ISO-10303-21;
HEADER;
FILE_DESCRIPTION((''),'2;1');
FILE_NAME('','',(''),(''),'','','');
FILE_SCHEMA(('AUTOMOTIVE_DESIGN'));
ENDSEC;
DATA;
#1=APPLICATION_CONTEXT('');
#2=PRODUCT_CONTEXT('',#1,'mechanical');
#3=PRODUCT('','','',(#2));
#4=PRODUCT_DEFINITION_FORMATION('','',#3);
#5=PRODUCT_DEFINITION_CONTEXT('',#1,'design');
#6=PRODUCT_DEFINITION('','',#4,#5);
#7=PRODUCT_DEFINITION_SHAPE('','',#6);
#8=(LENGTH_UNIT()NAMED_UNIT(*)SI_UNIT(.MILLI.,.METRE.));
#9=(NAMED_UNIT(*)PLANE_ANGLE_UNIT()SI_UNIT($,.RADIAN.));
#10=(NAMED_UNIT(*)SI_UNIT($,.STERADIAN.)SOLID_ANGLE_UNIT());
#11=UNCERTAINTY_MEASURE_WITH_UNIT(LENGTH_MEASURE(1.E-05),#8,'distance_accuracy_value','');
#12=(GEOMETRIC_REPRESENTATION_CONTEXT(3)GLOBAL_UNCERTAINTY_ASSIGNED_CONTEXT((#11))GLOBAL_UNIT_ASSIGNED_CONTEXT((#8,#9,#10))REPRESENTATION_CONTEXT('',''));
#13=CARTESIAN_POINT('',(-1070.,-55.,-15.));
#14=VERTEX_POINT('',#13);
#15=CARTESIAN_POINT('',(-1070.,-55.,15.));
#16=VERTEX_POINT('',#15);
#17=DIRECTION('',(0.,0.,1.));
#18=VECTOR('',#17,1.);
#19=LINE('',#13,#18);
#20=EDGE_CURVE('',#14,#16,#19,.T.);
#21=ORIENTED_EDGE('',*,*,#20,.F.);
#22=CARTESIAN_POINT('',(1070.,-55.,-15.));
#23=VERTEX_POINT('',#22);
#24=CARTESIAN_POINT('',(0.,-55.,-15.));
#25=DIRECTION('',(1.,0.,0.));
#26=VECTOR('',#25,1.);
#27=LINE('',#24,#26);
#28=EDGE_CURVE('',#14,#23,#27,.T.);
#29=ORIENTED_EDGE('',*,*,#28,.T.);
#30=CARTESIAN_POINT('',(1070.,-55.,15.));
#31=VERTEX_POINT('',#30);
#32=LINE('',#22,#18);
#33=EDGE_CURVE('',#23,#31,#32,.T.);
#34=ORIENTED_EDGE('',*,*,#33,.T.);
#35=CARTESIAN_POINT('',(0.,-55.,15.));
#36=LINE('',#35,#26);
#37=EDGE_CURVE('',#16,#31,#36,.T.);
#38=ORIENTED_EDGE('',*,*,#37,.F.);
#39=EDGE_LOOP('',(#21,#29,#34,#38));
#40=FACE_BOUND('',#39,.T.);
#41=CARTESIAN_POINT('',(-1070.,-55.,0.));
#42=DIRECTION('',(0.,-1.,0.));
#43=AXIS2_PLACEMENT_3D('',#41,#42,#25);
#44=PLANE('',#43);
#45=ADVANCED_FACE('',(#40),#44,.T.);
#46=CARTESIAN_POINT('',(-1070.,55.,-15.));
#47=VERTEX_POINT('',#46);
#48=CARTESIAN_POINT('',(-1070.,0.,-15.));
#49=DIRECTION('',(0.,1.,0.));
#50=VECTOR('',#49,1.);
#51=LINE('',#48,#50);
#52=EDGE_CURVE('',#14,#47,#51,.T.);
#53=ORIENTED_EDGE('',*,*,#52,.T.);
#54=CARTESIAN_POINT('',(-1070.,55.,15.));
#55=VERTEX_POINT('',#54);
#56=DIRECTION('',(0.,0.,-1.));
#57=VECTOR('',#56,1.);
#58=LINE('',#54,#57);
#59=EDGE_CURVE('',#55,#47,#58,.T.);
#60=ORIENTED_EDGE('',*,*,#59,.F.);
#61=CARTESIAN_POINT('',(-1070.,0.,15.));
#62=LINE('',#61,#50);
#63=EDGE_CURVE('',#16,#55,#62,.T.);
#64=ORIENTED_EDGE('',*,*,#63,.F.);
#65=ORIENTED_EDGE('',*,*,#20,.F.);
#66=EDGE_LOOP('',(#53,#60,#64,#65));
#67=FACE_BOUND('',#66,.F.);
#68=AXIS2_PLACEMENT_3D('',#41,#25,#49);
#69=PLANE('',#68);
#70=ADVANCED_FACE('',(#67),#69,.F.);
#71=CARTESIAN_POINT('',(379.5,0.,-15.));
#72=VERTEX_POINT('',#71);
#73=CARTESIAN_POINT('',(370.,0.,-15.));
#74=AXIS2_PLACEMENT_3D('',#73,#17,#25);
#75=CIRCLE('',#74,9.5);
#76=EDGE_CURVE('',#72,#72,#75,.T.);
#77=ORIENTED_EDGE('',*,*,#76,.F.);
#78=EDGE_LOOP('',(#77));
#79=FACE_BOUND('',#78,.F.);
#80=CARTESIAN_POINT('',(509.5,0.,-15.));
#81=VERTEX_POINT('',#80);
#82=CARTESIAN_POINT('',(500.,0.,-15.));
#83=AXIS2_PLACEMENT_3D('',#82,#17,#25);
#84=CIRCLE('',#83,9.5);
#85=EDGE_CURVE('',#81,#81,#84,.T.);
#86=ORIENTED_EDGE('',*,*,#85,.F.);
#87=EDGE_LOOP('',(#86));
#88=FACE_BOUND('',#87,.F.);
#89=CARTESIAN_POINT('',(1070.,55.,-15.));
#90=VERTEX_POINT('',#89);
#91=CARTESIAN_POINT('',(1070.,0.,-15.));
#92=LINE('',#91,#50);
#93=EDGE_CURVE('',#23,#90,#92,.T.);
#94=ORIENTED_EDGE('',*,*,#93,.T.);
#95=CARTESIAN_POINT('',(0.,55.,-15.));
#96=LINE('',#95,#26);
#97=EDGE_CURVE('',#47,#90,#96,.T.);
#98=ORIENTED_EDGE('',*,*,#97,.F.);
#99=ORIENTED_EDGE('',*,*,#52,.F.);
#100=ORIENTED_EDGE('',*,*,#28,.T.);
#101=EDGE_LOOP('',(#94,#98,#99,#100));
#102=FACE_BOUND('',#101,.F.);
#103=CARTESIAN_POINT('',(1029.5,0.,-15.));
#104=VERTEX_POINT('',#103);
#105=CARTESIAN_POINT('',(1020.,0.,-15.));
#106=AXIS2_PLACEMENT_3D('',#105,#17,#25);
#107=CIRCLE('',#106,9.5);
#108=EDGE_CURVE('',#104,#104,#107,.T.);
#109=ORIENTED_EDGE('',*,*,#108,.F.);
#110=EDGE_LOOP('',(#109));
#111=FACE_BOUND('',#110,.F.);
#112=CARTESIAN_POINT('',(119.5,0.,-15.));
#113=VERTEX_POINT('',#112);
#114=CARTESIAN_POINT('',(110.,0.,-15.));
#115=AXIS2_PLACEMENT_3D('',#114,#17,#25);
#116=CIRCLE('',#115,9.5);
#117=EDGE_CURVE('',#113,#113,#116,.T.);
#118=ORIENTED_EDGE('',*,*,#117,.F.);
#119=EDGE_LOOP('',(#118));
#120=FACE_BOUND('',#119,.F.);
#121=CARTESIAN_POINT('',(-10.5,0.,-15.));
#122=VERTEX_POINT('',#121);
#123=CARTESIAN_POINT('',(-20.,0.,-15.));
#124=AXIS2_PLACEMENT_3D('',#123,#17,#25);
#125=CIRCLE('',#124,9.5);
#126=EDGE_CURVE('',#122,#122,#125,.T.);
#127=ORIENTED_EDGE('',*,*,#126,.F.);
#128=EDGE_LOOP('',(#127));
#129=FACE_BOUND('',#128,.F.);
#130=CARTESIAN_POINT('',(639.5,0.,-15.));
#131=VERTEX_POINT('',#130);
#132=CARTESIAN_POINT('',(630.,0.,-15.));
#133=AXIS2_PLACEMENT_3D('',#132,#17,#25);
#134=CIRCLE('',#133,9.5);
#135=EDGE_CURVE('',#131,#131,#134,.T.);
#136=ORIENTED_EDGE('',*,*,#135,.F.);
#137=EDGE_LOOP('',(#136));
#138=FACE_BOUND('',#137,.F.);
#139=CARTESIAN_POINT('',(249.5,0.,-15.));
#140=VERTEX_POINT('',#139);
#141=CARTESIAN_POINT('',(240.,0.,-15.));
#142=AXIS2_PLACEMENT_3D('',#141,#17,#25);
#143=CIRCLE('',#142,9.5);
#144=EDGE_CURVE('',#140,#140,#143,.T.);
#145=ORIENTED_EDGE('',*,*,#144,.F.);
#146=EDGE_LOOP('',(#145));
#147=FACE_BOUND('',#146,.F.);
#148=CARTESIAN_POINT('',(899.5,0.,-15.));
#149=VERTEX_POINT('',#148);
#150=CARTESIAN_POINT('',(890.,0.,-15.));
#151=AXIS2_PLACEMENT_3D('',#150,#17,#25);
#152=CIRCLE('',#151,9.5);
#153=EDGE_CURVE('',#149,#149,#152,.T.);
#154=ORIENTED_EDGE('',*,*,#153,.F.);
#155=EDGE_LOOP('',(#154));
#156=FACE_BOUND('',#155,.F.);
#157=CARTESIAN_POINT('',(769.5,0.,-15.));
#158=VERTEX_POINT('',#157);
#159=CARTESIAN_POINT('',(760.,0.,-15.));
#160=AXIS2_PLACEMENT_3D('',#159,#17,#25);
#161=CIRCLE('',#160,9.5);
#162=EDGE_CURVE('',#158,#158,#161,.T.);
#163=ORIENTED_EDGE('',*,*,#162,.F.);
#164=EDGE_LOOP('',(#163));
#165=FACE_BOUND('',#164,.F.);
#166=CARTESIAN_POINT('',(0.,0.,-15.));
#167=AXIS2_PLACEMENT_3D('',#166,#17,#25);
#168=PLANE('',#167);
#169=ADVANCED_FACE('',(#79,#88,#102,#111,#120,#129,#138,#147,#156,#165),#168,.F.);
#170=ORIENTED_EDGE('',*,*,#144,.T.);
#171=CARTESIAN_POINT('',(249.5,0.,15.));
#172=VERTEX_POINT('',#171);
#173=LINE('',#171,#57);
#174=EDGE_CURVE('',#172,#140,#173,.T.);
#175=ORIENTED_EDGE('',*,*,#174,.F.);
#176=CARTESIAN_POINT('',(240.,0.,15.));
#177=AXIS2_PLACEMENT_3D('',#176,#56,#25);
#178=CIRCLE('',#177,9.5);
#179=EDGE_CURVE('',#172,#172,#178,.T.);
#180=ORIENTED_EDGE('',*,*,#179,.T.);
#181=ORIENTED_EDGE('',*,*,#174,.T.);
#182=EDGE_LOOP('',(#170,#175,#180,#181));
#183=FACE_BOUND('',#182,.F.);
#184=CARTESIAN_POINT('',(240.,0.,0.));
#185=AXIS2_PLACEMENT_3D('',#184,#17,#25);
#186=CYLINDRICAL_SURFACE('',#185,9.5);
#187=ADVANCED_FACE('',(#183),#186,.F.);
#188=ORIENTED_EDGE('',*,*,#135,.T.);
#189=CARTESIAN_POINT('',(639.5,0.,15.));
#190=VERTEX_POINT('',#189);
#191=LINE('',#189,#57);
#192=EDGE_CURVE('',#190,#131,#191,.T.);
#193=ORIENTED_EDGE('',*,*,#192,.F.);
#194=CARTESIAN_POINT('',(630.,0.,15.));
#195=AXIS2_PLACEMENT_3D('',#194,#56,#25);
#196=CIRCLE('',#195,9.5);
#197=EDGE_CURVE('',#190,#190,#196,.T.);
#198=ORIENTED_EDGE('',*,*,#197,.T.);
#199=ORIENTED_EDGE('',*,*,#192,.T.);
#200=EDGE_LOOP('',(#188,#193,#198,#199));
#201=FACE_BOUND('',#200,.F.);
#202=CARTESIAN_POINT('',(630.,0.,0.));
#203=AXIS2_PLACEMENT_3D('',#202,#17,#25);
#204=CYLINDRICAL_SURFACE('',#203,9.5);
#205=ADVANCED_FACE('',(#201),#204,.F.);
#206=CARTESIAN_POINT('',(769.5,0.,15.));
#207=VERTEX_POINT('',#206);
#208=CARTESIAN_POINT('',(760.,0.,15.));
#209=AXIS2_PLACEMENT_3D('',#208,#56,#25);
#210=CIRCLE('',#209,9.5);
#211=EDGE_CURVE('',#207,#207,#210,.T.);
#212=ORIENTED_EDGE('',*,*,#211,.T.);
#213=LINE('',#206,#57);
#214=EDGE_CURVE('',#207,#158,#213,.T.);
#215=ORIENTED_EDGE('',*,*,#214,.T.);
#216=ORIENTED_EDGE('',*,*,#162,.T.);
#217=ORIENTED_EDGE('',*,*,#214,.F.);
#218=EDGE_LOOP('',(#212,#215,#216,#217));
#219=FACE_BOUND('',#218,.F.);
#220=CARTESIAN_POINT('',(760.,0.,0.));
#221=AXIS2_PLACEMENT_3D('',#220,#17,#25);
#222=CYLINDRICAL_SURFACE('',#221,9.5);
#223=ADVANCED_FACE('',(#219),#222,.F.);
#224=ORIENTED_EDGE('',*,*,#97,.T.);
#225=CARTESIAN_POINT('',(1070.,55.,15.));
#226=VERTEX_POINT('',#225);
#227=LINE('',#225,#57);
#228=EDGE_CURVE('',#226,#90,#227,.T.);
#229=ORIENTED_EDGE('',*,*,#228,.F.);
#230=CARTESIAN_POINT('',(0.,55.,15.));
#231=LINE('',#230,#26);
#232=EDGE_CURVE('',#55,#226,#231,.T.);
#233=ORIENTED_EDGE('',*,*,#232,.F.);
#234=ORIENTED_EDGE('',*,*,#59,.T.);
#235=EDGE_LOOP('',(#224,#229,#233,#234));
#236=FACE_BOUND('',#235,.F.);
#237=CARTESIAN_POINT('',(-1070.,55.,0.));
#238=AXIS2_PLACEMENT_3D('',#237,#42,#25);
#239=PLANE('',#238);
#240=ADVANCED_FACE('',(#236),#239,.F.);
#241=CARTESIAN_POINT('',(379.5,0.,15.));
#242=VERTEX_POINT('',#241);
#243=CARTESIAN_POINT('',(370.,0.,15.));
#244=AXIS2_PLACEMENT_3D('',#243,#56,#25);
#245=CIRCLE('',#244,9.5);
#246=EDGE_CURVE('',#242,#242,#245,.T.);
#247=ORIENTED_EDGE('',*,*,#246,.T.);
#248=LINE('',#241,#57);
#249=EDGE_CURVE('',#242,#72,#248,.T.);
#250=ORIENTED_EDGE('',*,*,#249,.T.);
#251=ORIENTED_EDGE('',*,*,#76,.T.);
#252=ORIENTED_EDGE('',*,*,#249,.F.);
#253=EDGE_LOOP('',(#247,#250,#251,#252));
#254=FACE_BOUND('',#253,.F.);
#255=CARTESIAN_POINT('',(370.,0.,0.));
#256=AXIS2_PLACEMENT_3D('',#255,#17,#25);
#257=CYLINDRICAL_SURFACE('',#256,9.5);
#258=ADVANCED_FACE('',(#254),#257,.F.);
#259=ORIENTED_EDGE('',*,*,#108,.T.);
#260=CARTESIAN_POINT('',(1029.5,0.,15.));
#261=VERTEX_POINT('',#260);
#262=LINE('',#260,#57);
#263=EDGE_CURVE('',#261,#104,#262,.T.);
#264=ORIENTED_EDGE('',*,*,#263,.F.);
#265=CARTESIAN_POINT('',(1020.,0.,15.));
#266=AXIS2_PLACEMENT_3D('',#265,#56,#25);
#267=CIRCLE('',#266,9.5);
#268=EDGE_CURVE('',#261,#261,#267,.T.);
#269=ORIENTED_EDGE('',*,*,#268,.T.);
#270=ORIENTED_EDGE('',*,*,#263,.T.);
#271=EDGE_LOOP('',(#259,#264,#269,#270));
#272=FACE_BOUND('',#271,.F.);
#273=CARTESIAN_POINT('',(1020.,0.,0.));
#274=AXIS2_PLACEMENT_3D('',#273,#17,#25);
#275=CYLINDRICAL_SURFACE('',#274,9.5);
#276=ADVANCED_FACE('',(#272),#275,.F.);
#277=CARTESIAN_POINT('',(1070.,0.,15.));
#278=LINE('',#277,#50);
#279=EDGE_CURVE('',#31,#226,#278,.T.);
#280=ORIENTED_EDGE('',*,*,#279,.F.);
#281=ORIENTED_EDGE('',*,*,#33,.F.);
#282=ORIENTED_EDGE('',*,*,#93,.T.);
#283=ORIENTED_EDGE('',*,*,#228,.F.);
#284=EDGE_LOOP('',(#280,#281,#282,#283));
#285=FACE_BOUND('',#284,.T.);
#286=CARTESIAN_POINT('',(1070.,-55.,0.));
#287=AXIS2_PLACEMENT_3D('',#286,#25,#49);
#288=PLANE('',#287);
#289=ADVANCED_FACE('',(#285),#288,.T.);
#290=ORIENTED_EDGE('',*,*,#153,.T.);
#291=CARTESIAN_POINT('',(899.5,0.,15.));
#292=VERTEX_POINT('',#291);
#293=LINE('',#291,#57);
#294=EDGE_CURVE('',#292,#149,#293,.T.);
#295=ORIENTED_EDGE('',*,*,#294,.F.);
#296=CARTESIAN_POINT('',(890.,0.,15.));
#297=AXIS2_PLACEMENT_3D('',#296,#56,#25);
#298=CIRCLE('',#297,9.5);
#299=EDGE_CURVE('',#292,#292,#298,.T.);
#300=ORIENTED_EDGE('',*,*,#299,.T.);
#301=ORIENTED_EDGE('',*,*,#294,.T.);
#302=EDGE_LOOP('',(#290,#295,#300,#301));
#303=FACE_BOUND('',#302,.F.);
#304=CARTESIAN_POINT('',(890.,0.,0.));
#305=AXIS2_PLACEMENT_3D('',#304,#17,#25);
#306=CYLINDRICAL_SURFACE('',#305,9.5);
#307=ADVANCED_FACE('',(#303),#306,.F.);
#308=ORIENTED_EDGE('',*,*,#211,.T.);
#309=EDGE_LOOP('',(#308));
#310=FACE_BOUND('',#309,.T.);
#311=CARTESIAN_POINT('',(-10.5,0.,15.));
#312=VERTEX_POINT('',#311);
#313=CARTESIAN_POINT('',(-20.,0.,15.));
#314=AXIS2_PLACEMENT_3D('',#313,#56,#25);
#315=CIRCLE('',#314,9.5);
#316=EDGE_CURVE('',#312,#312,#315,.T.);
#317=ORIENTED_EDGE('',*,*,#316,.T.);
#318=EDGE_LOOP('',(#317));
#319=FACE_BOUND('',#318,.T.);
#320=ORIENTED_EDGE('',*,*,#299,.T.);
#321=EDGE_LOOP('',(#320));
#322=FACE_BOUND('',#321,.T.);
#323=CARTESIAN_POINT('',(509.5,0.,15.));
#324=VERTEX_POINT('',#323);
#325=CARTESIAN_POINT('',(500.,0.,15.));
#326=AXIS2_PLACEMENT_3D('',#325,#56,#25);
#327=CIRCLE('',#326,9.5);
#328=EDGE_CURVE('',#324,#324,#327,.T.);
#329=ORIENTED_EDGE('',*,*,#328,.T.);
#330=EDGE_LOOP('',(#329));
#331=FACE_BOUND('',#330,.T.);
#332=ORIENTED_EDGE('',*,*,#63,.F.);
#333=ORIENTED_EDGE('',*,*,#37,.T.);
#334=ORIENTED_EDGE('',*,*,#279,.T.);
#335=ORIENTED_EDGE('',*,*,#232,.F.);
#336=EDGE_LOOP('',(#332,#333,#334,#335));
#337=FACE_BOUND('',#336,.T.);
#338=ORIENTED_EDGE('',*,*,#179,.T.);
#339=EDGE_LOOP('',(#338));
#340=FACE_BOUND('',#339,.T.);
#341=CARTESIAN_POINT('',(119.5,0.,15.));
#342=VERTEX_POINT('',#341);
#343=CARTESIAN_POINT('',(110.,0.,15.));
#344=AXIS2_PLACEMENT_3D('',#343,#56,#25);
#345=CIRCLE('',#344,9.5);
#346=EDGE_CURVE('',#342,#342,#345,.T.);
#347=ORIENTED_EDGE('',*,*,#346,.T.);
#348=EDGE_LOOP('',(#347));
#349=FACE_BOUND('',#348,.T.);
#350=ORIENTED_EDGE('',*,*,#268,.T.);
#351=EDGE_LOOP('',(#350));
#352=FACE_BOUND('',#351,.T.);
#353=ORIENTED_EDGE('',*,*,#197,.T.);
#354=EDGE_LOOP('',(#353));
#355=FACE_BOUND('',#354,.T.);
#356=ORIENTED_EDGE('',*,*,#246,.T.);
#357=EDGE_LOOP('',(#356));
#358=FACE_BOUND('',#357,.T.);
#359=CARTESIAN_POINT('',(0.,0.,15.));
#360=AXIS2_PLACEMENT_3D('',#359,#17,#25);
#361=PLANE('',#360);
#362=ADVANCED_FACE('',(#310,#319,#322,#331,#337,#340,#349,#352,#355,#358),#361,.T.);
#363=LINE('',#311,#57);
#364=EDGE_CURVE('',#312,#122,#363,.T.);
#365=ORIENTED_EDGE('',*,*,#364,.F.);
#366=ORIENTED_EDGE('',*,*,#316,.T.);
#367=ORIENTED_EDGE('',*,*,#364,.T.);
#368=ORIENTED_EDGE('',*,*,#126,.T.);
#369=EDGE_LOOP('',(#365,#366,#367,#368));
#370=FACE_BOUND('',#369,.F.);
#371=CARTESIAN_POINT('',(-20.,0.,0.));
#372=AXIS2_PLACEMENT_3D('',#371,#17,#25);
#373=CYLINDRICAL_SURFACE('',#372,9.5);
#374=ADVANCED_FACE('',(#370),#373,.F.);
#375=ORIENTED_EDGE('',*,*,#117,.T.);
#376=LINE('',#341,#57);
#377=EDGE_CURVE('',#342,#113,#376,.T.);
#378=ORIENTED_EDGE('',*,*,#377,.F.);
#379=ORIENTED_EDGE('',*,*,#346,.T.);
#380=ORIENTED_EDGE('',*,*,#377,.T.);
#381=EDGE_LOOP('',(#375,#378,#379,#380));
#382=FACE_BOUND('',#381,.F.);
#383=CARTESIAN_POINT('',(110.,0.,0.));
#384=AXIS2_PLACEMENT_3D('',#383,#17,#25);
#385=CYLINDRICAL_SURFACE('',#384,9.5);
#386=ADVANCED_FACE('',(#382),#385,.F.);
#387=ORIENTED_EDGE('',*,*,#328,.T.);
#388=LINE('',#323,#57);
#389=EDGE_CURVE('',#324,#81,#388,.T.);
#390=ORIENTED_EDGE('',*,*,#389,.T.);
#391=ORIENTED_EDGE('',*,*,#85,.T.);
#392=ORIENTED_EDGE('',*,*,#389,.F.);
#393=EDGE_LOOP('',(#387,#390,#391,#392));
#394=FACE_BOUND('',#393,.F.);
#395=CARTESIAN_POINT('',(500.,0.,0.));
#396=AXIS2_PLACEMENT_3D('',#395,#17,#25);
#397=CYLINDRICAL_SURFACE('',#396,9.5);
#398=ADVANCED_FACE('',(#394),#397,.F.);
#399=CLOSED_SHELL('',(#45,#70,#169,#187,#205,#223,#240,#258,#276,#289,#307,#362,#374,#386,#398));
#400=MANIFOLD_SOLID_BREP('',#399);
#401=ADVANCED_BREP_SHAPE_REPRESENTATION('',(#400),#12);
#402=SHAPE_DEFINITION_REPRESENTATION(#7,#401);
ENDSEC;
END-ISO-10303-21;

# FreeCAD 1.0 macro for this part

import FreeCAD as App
import Part
import Sketcher
from FreeCAD import Vector

doc = App.newDocument("Part")
body = doc.addObject("PartDesign::Body", "Body")

# Sketch on XY plane
sketch1 = body.newObject("Sketcher::SketchObject", "Sketch")
sketch1.AttachmentSupport = (doc.getObject("XY_Plane"), [""])
sketch1.MapMode = "FlatFace"
sketch1.addGeometry([
    Part.LineSegment(Vector(-1070, 55, 0), Vector(-1070, -55, 0)),
    Part.LineSegment(Vector(-1070, -55, 0), Vector(1070, -55, 0)),
    Part.LineSegment(Vector(1070, -55, 0), Vector(1070, 55, 0)),
    Part.LineSegment(Vector(1070, 55, 0), Vector(-1070, 55, 0)),
], False)
sketch1.addConstraint([
    Sketcher.Constraint("Coincident", 0, 2, 1, 1),
    Sketcher.Constraint("Coincident", 1, 2, 2, 1),
    Sketcher.Constraint("Coincident", 2, 2, 3, 1),
    Sketcher.Constraint("Coincident", 3, 2, 0, 1),
    Sketcher.Constraint("Vertical", 0),
    Sketcher.Constraint("Horizontal", 1),
    Sketcher.Constraint("Vertical", 2),
    Sketcher.Constraint("Horizontal", 3),
    Sketcher.Constraint("Symmetric", 0, 2, 2, 2, -1, 1),
    Sketcher.Constraint("DistanceX", 1, 1, 1, 2, 2140.0),
    Sketcher.Constraint("DistanceY", 0, 2, 0, 1, 110.0),
])
pad1 = body.newObject("PartDesign::Pad", "Pad")
pad1.Profile = sketch1
pad1.Length = 30
pad1.Midplane = True

# Sketch on XY plane
sketch2 = body.newObject("Sketcher::SketchObject", "Sketch001")
sketch2.AttachmentSupport = (doc.getObject("XY_Plane"), [""])
sketch2.MapMode = "FlatFace"
sketch2.addGeometry([
    Part.Circle(Vector(1020, 0, 0), Vector(0, 0, 1), 10),  # 0
    Part.Circle(Vector(890, 0, 0), Vector(0, 0, 1), 10),  # 1
    Part.Circle(Vector(760, 0, 0), Vector(0, 0, 1), 10),  # 2
    Part.Circle(Vector(630, 0, 0), Vector(0, 0, 1), 10),  # 3
    Part.Circle(Vector(500, 0, 0), Vector(0, 0, 1), 10),  # 4
    Part.Circle(Vector(370, 0, 0), Vector(0, 0, 1), 10),  # 5
    Part.Circle(Vector(240, 0, 0), Vector(0, 0, 1), 10),  # 6
    Part.Circle(Vector(110, 0, 0), Vector(0, 0, 1), 10),  # 7
    Part.Circle(Vector(-20, 0, 0), Vector(0, 0, 1), 10),  # 8
], False)
sketch2.addConstraint([
    Sketcher.Constraint("Equal", 0, 1),
    Sketcher.Constraint("Equal", 1, 2),
    Sketcher.Constraint("Equal", 2, 3),
    Sketcher.Constraint("Equal", 3, 4),
    Sketcher.Constraint("Equal", 4, 5),
    Sketcher.Constraint("Equal", 5, 6),
    Sketcher.Constraint("Equal", 6, 7),
    Sketcher.Constraint("Equal", 7, 8),
    Sketcher.Constraint("PointOnObject", 0, 3, -1),
    Sketcher.Constraint("PointOnObject", 1, 3, -1),
    Sketcher.Constraint("PointOnObject", 2, 3, -1),
    Sketcher.Constraint("PointOnObject", 3, 3, -1),
    Sketcher.Constraint("PointOnObject", 4, 3, -1),
    Sketcher.Constraint("PointOnObject", 5, 3, -1),
    Sketcher.Constraint("PointOnObject", 6, 3, -1),
    Sketcher.Constraint("PointOnObject", 7, 3, -1),
    Sketcher.Constraint("PointOnObject", 8, 3, -1),
    Sketcher.Constraint("Diameter", 0, 19.0),
    Sketcher.Constraint("DistanceX", -1, 1, 0, 3, 1020.0),
    Sketcher.Constraint("DistanceX", -1, 1, 1, 3, 890.0),
    Sketcher.Constraint("DistanceX", -1, 1, 2, 3, 760.0),
    Sketcher.Constraint("DistanceX", -1, 1, 3, 3, 630.0),
    Sketcher.Constraint("DistanceX", -1, 1, 4, 3, 500.0),
    Sketcher.Constraint("DistanceX", -1, 1, 5, 3, 370.0),
    Sketcher.Constraint("DistanceX", -1, 1, 6, 3, 240.0),
    Sketcher.Constraint("DistanceX", -1, 1, 7, 3, 110.0),
    Sketcher.Constraint("DistanceX", 8, 3, -1, 1, 20.0),
])
pocket1 = body.newObject("PartDesign::Pocket", "Pocket")
pocket1.Profile = sketch2
pocket1.Type = "ThroughAll"
pocket1.Midplane = True

doc.recompute()
